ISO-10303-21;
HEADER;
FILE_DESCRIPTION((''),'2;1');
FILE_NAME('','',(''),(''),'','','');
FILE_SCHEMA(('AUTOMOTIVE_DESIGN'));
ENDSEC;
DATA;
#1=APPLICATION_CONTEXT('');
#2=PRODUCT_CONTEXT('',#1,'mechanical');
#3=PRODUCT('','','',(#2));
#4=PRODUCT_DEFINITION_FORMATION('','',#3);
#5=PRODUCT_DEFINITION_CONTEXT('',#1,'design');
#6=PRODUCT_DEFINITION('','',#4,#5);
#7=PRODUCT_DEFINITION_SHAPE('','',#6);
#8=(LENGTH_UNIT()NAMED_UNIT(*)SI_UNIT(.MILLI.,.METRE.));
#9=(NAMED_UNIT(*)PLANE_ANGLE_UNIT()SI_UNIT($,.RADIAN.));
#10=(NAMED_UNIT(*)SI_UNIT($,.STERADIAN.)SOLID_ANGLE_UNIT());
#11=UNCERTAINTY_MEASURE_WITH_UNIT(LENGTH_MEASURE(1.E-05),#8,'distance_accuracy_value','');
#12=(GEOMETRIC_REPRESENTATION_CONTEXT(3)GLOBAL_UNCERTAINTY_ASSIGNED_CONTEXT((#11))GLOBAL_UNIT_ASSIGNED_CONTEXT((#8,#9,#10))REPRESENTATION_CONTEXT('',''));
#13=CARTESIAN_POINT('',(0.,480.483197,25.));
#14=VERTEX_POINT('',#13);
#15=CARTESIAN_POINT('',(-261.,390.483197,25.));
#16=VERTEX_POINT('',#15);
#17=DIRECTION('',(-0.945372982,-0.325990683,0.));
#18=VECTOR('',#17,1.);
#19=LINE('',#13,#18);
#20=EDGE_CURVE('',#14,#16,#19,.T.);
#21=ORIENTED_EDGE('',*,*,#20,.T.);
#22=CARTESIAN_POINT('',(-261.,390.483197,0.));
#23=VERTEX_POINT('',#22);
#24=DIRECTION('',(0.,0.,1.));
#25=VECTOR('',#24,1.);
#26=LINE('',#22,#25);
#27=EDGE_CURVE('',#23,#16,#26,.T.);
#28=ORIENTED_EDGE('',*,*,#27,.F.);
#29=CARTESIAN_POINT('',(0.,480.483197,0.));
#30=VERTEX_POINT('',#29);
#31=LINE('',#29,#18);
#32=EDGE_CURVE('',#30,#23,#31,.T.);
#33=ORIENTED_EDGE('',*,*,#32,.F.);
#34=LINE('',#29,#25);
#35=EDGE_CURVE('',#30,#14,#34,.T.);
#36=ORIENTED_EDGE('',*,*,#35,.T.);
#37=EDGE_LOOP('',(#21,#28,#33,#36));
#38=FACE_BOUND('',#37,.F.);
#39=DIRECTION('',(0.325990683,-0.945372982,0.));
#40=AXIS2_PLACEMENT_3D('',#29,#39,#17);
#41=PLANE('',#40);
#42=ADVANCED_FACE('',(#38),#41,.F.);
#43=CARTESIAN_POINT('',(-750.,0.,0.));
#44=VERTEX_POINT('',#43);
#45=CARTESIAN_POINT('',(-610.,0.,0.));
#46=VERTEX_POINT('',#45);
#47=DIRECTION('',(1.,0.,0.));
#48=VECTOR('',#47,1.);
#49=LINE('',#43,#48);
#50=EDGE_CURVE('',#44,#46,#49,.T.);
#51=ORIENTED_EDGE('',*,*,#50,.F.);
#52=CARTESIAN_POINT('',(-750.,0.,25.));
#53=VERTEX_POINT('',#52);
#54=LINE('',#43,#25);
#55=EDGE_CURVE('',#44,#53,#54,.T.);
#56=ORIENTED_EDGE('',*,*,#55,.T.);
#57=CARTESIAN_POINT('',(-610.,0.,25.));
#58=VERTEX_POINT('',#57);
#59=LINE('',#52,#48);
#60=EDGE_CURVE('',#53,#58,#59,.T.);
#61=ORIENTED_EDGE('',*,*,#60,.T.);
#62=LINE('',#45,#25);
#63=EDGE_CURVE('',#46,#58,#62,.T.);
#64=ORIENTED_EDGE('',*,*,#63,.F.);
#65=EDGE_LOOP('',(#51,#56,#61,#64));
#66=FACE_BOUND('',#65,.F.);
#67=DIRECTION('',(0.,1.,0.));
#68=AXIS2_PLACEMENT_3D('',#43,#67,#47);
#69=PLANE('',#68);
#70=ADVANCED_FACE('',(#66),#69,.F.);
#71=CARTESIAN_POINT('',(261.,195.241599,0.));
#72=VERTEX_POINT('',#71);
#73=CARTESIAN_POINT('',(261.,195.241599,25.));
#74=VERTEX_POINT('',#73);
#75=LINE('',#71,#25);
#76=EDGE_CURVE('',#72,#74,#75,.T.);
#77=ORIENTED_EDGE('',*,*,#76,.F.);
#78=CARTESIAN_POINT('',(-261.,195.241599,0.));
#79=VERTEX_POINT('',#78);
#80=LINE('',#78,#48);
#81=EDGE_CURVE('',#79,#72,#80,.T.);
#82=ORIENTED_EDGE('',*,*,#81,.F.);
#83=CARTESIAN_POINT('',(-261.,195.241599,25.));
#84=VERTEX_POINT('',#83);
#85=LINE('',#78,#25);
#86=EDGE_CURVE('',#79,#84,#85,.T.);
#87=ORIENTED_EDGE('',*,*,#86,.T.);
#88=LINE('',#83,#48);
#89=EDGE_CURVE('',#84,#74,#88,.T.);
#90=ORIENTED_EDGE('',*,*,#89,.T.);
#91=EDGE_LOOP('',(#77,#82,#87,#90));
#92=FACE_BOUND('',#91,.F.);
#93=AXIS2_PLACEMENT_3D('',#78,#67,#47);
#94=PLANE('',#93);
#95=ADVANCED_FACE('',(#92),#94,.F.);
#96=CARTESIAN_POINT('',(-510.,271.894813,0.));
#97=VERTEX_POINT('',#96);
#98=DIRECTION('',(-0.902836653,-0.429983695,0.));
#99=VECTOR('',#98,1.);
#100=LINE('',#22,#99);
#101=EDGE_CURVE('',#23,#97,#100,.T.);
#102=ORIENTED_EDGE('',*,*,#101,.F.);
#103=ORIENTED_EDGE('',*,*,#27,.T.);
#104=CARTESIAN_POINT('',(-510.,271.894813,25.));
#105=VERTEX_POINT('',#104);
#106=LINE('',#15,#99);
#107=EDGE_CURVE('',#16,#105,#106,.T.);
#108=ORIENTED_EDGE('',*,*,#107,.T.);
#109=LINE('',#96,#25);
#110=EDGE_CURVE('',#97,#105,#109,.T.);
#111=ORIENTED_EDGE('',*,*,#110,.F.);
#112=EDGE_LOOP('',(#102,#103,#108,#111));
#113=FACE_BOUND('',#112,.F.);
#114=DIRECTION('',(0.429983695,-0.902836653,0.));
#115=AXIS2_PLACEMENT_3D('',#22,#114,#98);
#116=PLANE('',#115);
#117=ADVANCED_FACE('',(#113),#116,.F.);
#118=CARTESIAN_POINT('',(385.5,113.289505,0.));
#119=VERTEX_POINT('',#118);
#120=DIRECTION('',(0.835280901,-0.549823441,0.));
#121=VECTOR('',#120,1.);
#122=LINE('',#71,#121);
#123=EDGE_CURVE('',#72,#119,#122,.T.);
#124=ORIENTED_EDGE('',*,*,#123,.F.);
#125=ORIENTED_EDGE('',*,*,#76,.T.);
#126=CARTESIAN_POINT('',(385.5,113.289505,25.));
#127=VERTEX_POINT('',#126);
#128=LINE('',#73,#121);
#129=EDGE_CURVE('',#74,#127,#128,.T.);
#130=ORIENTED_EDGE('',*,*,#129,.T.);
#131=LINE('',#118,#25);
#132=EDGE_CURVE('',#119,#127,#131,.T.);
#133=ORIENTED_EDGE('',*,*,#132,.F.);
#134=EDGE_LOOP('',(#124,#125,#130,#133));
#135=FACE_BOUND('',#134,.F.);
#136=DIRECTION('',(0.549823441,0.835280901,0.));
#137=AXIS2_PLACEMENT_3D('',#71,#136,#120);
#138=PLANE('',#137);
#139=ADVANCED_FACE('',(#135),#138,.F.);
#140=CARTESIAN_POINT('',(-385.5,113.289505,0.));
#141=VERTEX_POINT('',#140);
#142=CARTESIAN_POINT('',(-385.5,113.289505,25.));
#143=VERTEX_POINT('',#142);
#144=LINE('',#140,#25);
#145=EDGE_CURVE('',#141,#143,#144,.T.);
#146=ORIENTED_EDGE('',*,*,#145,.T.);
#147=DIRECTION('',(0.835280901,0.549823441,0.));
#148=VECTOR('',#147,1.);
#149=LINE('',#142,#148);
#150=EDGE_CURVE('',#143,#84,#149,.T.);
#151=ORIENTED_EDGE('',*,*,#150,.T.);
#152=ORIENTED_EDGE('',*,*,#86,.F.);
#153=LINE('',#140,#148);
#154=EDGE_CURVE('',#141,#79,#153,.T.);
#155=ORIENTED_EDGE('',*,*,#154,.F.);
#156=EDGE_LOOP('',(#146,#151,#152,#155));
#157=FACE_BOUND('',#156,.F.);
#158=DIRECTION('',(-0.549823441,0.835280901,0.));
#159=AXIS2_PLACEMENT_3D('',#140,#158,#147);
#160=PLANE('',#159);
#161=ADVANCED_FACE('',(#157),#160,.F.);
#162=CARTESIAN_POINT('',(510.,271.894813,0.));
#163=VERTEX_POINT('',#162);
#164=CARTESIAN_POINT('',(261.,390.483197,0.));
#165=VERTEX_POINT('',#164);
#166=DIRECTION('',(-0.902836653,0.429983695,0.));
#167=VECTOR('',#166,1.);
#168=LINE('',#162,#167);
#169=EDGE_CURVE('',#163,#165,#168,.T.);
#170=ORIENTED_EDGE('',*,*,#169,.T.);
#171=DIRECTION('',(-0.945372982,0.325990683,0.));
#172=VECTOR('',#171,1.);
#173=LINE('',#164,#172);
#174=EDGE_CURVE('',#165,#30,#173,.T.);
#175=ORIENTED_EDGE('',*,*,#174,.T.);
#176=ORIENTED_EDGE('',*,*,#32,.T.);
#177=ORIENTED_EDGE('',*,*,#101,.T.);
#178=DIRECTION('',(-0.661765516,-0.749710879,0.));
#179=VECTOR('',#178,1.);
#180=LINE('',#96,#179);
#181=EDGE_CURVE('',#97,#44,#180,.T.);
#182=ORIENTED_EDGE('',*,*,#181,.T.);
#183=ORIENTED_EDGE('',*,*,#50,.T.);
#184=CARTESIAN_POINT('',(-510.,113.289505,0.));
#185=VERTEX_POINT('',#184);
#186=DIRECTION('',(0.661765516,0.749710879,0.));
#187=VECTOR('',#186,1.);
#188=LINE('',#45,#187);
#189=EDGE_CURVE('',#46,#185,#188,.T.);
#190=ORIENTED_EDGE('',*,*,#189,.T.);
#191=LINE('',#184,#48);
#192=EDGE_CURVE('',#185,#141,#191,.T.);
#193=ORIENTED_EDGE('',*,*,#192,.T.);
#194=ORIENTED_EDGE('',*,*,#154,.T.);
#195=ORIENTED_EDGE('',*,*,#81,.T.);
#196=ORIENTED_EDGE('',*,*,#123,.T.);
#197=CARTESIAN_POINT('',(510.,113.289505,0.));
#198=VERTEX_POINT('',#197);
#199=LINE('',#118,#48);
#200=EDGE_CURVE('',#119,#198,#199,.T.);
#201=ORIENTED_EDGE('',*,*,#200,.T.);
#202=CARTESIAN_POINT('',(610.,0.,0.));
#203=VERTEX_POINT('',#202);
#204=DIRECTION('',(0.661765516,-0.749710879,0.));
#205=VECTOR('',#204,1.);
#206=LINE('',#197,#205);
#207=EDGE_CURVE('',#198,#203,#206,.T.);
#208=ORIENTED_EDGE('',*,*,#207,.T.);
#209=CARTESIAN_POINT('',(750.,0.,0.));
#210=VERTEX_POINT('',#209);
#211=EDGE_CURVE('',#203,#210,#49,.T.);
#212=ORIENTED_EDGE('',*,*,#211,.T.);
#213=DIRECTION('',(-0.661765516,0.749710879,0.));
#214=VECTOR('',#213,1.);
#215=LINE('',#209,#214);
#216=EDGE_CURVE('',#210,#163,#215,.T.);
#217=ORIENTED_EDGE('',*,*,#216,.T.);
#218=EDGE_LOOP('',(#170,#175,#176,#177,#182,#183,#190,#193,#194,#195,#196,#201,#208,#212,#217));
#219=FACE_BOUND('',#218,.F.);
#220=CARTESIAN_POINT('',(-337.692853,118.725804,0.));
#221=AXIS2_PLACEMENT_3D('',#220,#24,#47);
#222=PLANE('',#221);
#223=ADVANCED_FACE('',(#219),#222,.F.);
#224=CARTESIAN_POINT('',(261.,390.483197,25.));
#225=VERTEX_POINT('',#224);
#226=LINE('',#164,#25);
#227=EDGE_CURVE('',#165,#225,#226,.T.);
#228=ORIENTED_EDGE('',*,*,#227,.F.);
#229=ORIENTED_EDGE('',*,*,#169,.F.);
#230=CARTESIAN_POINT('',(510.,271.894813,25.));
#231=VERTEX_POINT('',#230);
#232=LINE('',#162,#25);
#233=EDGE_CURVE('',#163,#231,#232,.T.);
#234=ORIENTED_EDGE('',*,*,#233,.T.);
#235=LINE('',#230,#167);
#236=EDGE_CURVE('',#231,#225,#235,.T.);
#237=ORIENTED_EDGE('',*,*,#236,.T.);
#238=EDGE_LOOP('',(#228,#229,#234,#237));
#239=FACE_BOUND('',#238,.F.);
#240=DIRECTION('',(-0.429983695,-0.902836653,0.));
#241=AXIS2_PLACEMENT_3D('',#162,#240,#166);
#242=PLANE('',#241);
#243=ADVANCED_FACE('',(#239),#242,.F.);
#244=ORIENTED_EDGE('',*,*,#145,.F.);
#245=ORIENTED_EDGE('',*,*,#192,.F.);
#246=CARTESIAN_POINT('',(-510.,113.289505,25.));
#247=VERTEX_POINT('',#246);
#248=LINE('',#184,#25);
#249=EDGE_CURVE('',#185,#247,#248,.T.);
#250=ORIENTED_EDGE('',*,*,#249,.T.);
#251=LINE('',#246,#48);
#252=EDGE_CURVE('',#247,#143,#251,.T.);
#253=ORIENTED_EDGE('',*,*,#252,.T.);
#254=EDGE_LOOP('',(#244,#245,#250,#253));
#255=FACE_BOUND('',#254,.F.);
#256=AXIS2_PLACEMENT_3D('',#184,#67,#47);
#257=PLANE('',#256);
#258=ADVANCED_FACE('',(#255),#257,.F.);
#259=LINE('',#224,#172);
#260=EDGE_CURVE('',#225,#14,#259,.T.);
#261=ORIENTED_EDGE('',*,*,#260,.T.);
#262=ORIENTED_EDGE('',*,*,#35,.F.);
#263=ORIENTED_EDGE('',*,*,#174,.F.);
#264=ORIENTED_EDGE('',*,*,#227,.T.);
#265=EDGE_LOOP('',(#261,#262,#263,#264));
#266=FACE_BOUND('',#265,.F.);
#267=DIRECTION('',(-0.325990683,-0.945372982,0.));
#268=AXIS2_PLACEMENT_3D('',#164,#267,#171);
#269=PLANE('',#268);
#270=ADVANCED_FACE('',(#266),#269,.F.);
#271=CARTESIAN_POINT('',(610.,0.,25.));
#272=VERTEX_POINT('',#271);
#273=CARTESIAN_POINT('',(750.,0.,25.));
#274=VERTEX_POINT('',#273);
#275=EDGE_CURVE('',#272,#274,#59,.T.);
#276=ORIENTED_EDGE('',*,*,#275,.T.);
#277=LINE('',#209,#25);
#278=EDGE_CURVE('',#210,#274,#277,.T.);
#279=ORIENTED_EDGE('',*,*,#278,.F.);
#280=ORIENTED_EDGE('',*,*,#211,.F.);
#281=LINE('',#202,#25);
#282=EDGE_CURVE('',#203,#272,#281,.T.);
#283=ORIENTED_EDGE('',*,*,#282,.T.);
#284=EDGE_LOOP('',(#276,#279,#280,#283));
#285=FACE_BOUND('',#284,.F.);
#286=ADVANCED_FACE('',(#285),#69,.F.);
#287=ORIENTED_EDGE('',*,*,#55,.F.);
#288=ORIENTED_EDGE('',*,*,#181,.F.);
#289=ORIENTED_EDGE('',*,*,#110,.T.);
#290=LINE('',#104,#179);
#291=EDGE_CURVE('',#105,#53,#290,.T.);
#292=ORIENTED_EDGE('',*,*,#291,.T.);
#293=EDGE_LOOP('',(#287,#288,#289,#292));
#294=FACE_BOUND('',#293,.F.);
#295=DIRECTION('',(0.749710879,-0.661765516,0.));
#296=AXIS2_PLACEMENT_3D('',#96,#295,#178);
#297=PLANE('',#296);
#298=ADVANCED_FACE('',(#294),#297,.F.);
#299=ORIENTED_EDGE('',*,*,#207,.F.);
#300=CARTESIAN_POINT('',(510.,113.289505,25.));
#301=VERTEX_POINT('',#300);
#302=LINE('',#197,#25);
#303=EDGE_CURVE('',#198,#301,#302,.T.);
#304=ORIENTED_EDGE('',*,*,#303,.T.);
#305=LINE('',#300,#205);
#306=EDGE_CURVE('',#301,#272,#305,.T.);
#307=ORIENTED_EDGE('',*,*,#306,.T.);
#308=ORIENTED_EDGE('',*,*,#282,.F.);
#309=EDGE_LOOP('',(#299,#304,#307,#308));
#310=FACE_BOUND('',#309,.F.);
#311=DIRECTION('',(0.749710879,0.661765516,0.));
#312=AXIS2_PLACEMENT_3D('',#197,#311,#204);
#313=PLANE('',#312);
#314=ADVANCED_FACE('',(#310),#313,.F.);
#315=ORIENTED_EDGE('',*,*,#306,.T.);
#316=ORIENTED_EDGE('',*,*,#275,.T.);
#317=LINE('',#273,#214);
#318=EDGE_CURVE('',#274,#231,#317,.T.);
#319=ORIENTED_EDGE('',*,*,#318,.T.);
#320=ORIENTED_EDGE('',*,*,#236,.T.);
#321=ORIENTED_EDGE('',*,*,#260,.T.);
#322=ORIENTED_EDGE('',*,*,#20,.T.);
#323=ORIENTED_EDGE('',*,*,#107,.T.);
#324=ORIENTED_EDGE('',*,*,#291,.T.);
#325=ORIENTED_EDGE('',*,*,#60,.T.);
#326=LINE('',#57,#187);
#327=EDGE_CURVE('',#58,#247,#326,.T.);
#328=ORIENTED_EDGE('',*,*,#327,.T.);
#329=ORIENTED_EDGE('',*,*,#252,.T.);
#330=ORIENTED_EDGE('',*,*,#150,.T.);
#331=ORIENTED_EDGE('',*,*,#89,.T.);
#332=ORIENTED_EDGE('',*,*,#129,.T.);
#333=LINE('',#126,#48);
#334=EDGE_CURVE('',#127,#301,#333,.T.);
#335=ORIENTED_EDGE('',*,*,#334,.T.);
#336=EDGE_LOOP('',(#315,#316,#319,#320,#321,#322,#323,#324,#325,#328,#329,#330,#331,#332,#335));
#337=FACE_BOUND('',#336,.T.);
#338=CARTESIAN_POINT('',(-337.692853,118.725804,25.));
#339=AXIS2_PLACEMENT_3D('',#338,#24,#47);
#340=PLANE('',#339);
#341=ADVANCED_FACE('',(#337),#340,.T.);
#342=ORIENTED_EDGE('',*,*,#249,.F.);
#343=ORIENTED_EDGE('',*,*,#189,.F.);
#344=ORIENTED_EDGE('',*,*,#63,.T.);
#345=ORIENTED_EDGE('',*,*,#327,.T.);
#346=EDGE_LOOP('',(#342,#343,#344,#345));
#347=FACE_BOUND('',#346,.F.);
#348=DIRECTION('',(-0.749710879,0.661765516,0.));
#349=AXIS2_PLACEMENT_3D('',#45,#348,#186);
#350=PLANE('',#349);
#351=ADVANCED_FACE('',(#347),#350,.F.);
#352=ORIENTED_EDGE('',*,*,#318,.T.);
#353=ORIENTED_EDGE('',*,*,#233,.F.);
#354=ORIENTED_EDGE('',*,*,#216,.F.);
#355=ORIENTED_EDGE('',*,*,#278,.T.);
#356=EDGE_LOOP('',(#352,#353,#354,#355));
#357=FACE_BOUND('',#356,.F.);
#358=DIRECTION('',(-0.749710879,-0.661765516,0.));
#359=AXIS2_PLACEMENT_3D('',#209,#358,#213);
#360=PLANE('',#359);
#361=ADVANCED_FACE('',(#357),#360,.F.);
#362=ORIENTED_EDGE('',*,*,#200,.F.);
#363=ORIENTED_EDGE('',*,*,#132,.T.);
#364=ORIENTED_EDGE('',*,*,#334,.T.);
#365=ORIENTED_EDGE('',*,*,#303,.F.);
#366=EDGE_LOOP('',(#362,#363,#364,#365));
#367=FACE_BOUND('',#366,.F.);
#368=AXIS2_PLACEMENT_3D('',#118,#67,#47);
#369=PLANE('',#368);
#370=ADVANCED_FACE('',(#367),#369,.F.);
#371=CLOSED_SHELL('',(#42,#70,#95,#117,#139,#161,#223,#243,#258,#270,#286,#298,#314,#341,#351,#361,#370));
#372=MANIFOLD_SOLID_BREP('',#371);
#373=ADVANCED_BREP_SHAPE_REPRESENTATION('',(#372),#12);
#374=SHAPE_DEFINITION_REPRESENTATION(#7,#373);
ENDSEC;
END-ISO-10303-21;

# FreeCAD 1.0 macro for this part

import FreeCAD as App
import Part
import Sketcher

V = App.Vector
Q = App.Units.Quantity

doc = App.newDocument("Part")
body = doc.addObject("PartDesign::Body", "Body")

sketch1 = body.newObject("Sketcher::SketchObject", "Sketch")
sketch1.AttachmentSupport = (doc.getObject("XY_Plane"), [""])
sketch1.MapMode = "FlatFace"
sketch1.addGeometry(Part.LineSegment(V(-510, 272, 0), V(-750, 0, 0)), False)
sketch1.addGeometry(Part.LineSegment(V(-750, 0, 0), V(750, 0, 0)), False)
sketch1.addGeometry(Part.LineSegment(V(750, 0, 0), V(510, 272, 0)), False)
sketch1.addGeometry(Part.LineSegment(V(510, 272, 0), V(261, 390, 0)), False)
sketch1.addGeometry(Part.LineSegment(V(261, 390, 0), V(0, 480, 0)), False)
sketch1.addGeometry(Part.LineSegment(V(0, 480, 0), V(-261, 390, 0)), False)
sketch1.addGeometry(Part.LineSegment(V(-261, 390, 0), V(-510, 272, 0)), False)
sketch1.addConstraint(Sketcher.Constraint("Coincident", 0, 2, 1, 1))
sketch1.addConstraint(Sketcher.Constraint("Coincident", 1, 2, 2, 1))
sketch1.addConstraint(Sketcher.Constraint("Coincident", 2, 2, 3, 1))
sketch1.addConstraint(Sketcher.Constraint("Coincident", 3, 2, 4, 1))
sketch1.addConstraint(Sketcher.Constraint("Coincident", 4, 2, 5, 1))
sketch1.addConstraint(Sketcher.Constraint("Coincident", 5, 2, 6, 1))
sketch1.addConstraint(Sketcher.Constraint("Coincident", 6, 2, 0, 1))
sketch1.addConstraint(Sketcher.Constraint("Horizontal", 1))
sketch1.addConstraint(Sketcher.Constraint("Symmetric", 0, 2, 1, 2, -1, 1))
sketch1.addConstraint(Sketcher.Constraint("Symmetric", 3, 2, 5, 2, -2))
sketch1.addConstraint(Sketcher.Constraint("Symmetric", 2, 2, 6, 2, -2))
sketch1.addConstraint(Sketcher.Constraint("PointOnObject", 4, 2, -2))
sketch1.addConstraint(Sketcher.Constraint("DistanceX", 1, 1, 1, 2, Q("1500 mm")))
sketch1.addConstraint(Sketcher.Constraint("DistanceX", -1, 1, 2, 2, Q("510 mm")))
sketch1.addConstraint(Sketcher.Constraint("DistanceX", -1, 1, 3, 2, Q("261 mm")))
sketch1.addConstraint(Sketcher.Constraint("DistanceY", 3, 2, 4, 2, Q("90 mm")))
sketch1.addConstraint(Sketcher.Constraint("Distance", 3, Q("275.797398 mm")))
sketch1.addConstraint(Sketcher.Constraint("Distance", 0, Q("362.666223 mm")))
pad1 = body.newObject("PartDesign::Pad", "Pad")
pad1.Profile = sketch1
pad1.Length = 25

sketch2 = body.newObject("Sketcher::SketchObject", "Sketch001")
sketch2.AttachmentSupport = (doc.getObject("XY_Plane"), [""])
sketch2.MapMode = "FlatFace"
sketch2.addGeometry(Part.LineSegment(V(610, 0, 0), V(-610, 0, 0)), False)
sketch2.addGeometry(Part.LineSegment(V(-610, 0, 0), V(-510, 113, 0)), False)
sketch2.addGeometry(Part.LineSegment(V(-510, 113, 0), V(-386, 113, 0)), False)
sketch2.addGeometry(Part.LineSegment(V(-386, 113, 0), V(-261, 195, 0)), False)
sketch2.addGeometry(Part.LineSegment(V(-261, 195, 0), V(261, 195, 0)), False)
sketch2.addGeometry(Part.LineSegment(V(261, 195, 0), V(386, 113, 0)), False)
sketch2.addGeometry(Part.LineSegment(V(386, 113, 0), V(510, 113, 0)), False)
sketch2.addGeometry(Part.LineSegment(V(510, 113, 0), V(610, 0, 0)), False)
sketch2.addConstraint(Sketcher.Constraint("Coincident", 0, 2, 1, 1))
sketch2.addConstraint(Sketcher.Constraint("Coincident", 1, 2, 2, 1))
sketch2.addConstraint(Sketcher.Constraint("Coincident", 2, 2, 3, 1))
sketch2.addConstraint(Sketcher.Constraint("Coincident", 3, 2, 4, 1))
sketch2.addConstraint(Sketcher.Constraint("Coincident", 4, 2, 5, 1))
sketch2.addConstraint(Sketcher.Constraint("Coincident", 5, 2, 6, 1))
sketch2.addConstraint(Sketcher.Constraint("Coincident", 6, 2, 7, 1))
sketch2.addConstraint(Sketcher.Constraint("Coincident", 7, 2, 0, 1))
sketch2.addConstraint(Sketcher.Constraint("Horizontal", 0))
sketch2.addConstraint(Sketcher.Constraint("Horizontal", 2))
sketch2.addConstraint(Sketcher.Constraint("Horizontal", 4))
sketch2.addConstraint(Sketcher.Constraint("Horizontal", 6))
sketch2.addConstraint(Sketcher.Constraint("Symmetric", 0, 2, 7, 2, -1, 1))
sketch2.addConstraint(Sketcher.Constraint("Symmetric", 2, 2, 5, 2, -2))
sketch2.addConstraint(Sketcher.Constraint("Equal", 2, 6))
sketch2.addConstraint(Sketcher.Constraint("Equal", 3, 5))
sketch2.addConstraint(Sketcher.Constraint("DistanceX", 0, 2, 0, 1, Q("1220 mm")))
sketch2.addConstraint(Sketcher.Constraint("DistanceX", 4, 1, 4, 2, Q("522 mm")))
sketch2.addConstraint(Sketcher.Constraint("DistanceX", 2, 1, 2, 2, Q("124.5 mm")))
sketch2.addConstraint(Sketcher.Constraint("DistanceX", 1, 2, -1, 1, Q("510 mm")))
sketch2.addConstraint(Sketcher.Constraint("DistanceY", -1, 1, 3, 2, Q("195.241599 mm")))
sketch2.addConstraint(Sketcher.Constraint("Distance", 1, Q("151.110926 mm")))
pocket1 = body.newObject("PartDesign::Pocket", "Pocket")
pocket1.Profile = sketch2
pocket1.Length = 25
pocket1.Reversed = True
body2 = doc.addObject("PartDesign::Body", "Body001")

sketch3 = body2.newObject("Sketcher::SketchObject", "Sketch002")
sketch3.AttachmentSupport = (doc.getObject("XY_Plane001"), [""])
sketch3.MapMode = "FlatFace"
sketch3.AttachmentOffset = App.Placement(V(0, 0, 25), App.Rotation())
sketch3.addGeometry(Part.LineSegment(V(-100, 195, 0), V(-100, 95, 0)), False)
sketch3.addGeometry(Part.LineSegment(V(-100, 95, 0), V(100, 95, 0)), False)
sketch3.addGeometry(Part.LineSegment(V(100, 95, 0), V(100, 195, 0)), False)
sketch3.addGeometry(Part.LineSegment(V(100, 195, 0), V(-100, 195, 0)), False)
sketch3.addConstraint(Sketcher.Constraint("Coincident", 0, 2, 1, 1))
sketch3.addConstraint(Sketcher.Constraint("Coincident", 1, 2, 2, 1))
sketch3.addConstraint(Sketcher.Constraint("Coincident", 2, 2, 3, 1))
sketch3.addConstraint(Sketcher.Constraint("Coincident", 3, 2, 0, 1))
sketch3.addConstraint(Sketcher.Constraint("Vertical", 0))
sketch3.addConstraint(Sketcher.Constraint("Horizontal", 1))
sketch3.addConstraint(Sketcher.Constraint("Vertical", 2))
sketch3.addConstraint(Sketcher.Constraint("Horizontal", 3))
sketch3.addConstraint(Sketcher.Constraint("DistanceX", 1, 1, 1, 2, Q("200 mm")))
sketch3.addConstraint(Sketcher.Constraint("DistanceY", 0, 2, 0, 1, Q("100 mm")))
sketch3.addConstraint(Sketcher.Constraint("DistanceX", 0, 2, -1, 1, Q("100 mm")))
sketch3.addConstraint(Sketcher.Constraint("DistanceY", -1, 1, 0, 2, Q("95.241599 mm")))
pad2 = body2.newObject("PartDesign::Pad", "Pad001")
pad2.Profile = sketch3
pad2.Length = 25
pad2.Reversed = True
body2.Visibility = False

doc.recompute()
